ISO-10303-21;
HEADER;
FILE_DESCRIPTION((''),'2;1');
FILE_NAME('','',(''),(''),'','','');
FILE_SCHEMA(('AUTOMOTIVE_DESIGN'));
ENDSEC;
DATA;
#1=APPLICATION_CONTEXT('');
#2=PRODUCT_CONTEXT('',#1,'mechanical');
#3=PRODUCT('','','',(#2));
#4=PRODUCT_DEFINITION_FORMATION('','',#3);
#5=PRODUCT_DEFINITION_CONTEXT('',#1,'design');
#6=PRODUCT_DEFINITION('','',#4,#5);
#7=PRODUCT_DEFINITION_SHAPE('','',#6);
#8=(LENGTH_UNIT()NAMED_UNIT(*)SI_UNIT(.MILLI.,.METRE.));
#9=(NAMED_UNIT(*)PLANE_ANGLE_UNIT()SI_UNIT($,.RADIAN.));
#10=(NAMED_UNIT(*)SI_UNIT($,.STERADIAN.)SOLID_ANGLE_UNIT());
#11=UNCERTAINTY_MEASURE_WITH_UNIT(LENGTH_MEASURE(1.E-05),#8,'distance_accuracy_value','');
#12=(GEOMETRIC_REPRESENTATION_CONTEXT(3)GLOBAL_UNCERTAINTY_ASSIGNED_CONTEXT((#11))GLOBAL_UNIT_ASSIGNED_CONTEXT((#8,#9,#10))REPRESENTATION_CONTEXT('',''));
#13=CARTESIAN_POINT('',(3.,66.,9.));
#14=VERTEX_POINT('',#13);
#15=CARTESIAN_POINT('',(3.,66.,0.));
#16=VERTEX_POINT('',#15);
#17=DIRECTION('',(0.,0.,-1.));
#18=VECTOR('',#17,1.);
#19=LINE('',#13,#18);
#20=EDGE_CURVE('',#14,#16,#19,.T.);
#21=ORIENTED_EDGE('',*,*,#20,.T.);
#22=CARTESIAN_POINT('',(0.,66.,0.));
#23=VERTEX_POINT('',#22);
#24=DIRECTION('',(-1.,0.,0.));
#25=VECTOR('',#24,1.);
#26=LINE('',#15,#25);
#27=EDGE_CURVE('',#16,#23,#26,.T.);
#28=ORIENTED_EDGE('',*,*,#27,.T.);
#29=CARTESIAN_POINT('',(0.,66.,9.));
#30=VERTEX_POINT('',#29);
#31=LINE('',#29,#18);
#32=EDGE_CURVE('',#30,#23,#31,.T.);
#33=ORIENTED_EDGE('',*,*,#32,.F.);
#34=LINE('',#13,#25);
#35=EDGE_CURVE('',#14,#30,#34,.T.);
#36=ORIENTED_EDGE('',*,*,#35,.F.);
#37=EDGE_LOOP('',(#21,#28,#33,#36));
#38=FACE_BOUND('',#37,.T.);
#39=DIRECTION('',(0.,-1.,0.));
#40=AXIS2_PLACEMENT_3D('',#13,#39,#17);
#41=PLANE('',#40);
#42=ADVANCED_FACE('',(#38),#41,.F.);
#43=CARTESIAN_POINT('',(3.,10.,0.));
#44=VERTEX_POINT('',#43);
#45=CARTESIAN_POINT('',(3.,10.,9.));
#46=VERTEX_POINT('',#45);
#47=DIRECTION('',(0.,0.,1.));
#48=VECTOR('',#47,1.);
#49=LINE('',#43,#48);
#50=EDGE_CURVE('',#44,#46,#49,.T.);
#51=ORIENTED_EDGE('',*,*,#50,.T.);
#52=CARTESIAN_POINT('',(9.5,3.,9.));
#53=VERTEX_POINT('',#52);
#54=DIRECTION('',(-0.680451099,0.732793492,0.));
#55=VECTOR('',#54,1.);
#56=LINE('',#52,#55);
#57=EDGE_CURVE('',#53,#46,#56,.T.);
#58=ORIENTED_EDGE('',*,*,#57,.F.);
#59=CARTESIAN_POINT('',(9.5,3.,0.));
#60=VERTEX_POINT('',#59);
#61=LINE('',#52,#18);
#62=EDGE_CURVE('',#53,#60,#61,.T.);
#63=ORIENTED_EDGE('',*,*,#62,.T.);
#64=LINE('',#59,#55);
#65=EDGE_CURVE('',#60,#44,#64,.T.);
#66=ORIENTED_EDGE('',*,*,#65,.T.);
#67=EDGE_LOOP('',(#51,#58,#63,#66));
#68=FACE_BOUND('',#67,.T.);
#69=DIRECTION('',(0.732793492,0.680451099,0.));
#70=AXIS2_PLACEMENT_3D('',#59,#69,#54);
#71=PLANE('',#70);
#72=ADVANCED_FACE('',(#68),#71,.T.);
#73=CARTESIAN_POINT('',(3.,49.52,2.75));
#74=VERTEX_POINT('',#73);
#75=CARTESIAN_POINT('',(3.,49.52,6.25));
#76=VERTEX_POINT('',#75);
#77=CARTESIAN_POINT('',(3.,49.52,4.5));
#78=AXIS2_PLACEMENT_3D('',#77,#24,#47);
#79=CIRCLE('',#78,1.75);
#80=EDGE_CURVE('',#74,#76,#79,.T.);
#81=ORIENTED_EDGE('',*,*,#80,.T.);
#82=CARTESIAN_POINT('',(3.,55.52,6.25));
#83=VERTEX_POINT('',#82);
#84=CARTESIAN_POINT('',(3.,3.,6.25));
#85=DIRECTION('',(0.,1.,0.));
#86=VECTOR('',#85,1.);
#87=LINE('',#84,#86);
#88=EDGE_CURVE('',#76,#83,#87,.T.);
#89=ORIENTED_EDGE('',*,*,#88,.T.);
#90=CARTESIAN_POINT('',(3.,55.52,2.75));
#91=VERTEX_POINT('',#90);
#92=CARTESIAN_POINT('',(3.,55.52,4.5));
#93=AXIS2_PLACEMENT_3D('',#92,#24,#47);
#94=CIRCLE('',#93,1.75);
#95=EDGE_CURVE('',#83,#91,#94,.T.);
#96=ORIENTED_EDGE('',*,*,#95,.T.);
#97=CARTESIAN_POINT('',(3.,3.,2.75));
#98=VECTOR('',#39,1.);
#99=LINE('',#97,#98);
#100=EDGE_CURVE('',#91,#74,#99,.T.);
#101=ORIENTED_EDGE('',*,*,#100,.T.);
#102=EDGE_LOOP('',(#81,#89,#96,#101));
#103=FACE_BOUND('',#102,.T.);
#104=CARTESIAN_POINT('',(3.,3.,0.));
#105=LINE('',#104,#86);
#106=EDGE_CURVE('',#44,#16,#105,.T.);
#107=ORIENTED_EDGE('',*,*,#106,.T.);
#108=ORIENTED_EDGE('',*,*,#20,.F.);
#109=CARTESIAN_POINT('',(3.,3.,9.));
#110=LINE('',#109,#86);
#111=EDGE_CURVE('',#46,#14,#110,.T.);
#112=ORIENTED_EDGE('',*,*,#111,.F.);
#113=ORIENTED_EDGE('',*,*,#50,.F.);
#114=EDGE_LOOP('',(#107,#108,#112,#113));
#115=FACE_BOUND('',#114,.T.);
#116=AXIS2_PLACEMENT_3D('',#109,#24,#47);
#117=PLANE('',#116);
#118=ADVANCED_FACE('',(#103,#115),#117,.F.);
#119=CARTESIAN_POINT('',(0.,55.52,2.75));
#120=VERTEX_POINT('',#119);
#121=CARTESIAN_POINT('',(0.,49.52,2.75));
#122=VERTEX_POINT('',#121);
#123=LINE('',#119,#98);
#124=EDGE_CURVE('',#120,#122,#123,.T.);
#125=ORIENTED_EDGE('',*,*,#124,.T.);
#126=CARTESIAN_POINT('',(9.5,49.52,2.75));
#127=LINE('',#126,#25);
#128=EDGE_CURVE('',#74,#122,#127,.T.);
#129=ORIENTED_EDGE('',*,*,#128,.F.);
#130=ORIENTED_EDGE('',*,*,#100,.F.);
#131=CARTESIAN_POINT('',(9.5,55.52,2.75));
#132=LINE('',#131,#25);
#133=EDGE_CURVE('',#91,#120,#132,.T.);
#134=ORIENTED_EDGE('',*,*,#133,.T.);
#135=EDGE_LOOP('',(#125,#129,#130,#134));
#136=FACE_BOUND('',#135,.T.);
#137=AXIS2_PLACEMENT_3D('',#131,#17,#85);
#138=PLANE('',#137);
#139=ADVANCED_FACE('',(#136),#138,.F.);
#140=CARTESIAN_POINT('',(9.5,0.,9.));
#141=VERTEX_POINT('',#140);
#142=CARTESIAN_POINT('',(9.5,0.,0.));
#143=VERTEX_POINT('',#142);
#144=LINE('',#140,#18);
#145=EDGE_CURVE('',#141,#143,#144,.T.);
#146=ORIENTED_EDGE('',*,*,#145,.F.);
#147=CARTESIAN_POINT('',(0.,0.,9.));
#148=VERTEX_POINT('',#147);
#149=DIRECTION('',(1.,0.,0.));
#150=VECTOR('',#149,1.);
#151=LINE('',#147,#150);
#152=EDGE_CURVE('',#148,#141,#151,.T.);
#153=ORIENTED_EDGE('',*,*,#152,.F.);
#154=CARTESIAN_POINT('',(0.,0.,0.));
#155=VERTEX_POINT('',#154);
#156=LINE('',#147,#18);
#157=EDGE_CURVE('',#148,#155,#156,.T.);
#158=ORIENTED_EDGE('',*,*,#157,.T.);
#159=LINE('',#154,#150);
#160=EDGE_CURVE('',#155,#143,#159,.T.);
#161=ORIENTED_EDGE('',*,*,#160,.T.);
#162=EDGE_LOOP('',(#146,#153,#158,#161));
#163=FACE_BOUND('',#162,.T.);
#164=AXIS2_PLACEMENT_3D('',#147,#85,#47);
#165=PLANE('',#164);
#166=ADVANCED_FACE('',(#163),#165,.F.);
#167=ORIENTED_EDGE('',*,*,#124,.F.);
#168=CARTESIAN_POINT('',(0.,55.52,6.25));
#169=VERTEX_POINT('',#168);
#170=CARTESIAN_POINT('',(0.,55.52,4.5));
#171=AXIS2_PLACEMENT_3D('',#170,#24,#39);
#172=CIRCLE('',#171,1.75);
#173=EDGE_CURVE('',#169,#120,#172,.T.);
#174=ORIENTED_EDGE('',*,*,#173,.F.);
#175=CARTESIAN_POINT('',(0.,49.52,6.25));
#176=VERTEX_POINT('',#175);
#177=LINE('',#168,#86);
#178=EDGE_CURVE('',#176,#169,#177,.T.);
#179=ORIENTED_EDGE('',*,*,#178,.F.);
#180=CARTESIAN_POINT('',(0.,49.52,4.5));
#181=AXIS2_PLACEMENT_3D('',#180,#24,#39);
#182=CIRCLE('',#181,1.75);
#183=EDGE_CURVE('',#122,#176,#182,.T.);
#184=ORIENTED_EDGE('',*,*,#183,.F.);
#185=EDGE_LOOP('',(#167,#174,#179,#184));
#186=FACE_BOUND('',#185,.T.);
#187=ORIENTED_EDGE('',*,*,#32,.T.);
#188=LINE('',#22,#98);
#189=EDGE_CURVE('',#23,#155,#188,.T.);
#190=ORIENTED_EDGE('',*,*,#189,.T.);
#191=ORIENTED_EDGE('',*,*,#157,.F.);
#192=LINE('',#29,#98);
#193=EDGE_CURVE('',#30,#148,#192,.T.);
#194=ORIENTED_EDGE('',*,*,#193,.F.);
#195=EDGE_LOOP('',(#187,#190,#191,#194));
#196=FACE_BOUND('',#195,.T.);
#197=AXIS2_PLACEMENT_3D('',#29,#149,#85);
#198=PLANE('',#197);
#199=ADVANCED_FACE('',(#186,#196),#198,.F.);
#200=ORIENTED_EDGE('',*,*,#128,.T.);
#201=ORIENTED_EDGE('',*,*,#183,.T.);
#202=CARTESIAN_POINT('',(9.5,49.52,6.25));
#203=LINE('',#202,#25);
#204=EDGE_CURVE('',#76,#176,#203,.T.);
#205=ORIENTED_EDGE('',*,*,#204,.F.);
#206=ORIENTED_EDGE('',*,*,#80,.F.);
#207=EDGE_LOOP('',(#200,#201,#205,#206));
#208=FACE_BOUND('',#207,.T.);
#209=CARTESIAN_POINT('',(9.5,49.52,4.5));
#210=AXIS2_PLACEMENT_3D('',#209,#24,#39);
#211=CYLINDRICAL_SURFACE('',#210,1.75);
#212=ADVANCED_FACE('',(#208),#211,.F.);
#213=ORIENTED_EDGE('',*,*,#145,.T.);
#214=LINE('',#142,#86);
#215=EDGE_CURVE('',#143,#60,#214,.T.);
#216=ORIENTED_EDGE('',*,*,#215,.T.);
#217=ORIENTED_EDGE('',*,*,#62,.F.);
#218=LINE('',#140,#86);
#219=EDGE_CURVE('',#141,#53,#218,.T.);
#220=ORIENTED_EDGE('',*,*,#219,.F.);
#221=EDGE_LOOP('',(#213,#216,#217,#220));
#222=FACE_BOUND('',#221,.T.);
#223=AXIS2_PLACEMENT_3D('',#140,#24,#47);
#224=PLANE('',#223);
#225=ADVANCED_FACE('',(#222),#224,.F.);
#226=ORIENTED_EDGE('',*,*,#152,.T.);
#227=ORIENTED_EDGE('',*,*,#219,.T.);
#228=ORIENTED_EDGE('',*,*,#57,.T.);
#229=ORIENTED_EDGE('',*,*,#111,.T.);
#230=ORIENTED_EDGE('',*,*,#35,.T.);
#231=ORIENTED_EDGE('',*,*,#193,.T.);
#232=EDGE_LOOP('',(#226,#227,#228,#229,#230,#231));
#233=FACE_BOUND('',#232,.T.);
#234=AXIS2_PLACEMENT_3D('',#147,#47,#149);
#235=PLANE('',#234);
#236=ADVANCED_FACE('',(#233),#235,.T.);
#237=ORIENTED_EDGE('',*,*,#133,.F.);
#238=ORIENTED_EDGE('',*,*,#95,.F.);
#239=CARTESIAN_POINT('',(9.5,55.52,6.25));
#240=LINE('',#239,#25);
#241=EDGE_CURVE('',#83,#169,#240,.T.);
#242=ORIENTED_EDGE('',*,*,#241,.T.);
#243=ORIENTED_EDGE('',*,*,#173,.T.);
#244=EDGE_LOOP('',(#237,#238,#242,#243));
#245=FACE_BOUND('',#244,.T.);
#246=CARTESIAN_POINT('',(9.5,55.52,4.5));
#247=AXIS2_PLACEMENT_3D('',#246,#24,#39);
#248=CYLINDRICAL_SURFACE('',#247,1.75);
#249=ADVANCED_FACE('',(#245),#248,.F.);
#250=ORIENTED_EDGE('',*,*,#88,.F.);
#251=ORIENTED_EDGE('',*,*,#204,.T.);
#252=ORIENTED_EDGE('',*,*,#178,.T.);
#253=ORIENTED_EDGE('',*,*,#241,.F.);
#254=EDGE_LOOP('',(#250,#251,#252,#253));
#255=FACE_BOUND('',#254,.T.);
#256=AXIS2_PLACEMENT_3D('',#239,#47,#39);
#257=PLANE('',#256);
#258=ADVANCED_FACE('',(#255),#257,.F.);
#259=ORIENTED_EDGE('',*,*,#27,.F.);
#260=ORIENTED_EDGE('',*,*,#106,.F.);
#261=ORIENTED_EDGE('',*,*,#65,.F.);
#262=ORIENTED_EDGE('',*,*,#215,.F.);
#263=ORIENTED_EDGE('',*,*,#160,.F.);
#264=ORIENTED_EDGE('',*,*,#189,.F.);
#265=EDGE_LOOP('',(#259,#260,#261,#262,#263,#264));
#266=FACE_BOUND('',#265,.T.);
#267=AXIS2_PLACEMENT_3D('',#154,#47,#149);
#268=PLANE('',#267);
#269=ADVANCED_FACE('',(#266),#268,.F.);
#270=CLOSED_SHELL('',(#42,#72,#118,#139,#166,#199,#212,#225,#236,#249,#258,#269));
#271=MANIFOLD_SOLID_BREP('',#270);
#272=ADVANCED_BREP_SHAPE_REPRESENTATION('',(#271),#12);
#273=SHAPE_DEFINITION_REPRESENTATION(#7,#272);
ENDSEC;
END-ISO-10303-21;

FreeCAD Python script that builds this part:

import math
import FreeCAD as App
import Part
import Sketcher
from FreeCAD import Vector


def add_polygon(sketch, points):
    """Adds a closed chain of lines whose ends are joined by coincident constraints."""
    first, n = sketch.GeometryCount, len(points)
    for a, b in zip(points, points[1:] + points[:1]):
        sketch.addGeometry(Part.LineSegment(App.Vector(*a, 0), App.Vector(*b, 0)), False)
    for i in range(n):
        sketch.addConstraint(Sketcher.Constraint("Coincident", first + i, 2, first + (i + 1) % n, 1))

doc = App.newDocument("Part")
body = doc.addObject("PartDesign::Body", "Body")

# Sketch on XY plane
sketch1 = doc.addObject("Sketcher::SketchObject", "Sketch")
body.addObject(sketch1)
sketch1.AttachmentSupport = (doc.XY_Plane, [""])
sketch1.MapMode = "FlatFace"
add_polygon(sketch1, [(0, 0), (9.5, 0), (9.5, 3), (3, 3), (3, 66), (0, 66)])  # lines 0-5
sketch1.addConstraint(Sketcher.Constraint("Horizontal", 0))
sketch1.addConstraint(Sketcher.Constraint("Vertical", 1))
sketch1.addConstraint(Sketcher.Constraint("Horizontal", 2))
sketch1.addConstraint(Sketcher.Constraint("Vertical", 3))
sketch1.addConstraint(Sketcher.Constraint("Horizontal", 4))
sketch1.addConstraint(Sketcher.Constraint("Vertical", 5))
sketch1.addConstraint(Sketcher.Constraint("Coincident", 5, 2, -1, 1))
sketch1.addConstraint(Sketcher.Constraint("Equal", 4, 1))
sketch1.addConstraint(Sketcher.Constraint("DistanceX", 4, 2, 4, 1, 3.0))
sketch1.addConstraint(Sketcher.Constraint("DistanceY", 3, 1, 3, 2, 63.0))
sketch1.addConstraint(Sketcher.Constraint("DistanceX", 0, 1, 0, 2, 9.5))
pad1 = doc.addObject("PartDesign::Pad", "Pad")
body.addObject(pad1)
pad1.Profile = sketch1
pad1.Length = 9

# Sketch on YZ plane
sketch2 = doc.addObject("Sketcher::SketchObject", "Sketch001")
body.addObject(sketch2)
sketch2.AttachmentSupport = (doc.YZ_Plane, [""])
sketch2.MapMode = "FlatFace"
sketch2.addGeometry(Part.LineSegment(Vector(49.52, 6.25, 0), Vector(55.52, 6.25, 0)), False)
sketch2.addGeometry(Part.ArcOfCircle(Part.Circle(Vector(55.52, 4.5, 0), Vector(0, 0, 1), 1.75), math.radians(-90), math.radians(90)), False)
sketch2.addGeometry(Part.LineSegment(Vector(55.52, 2.75, 0), Vector(49.52, 2.75, 0)), False)
sketch2.addGeometry(Part.ArcOfCircle(Part.Circle(Vector(49.52, 4.5, 0), Vector(0, 0, 1), 1.75), math.radians(90), math.radians(270)), False)
sketch2.addConstraint(Sketcher.Constraint("Tangent", 0, 2, 1, 2))
sketch2.addConstraint(Sketcher.Constraint("Tangent", 1, 1, 2, 1))
sketch2.addConstraint(Sketcher.Constraint("Tangent", 2, 2, 3, 2))
sketch2.addConstraint(Sketcher.Constraint("Tangent", 3, 1, 0, 1))
sketch2.addConstraint(Sketcher.Constraint("Horizontal", 0))
sketch2.addConstraint(Sketcher.Constraint("Horizontal", 2))
sketch2.addConstraint(Sketcher.Constraint("DistanceX", 0, 1, 0, 2, 6.0))
sketch2.addConstraint(Sketcher.Constraint("Radius", 1, 1.75))
sketch2.addConstraint(Sketcher.Constraint("DistanceY", -1, 1, 1, 3, 4.5))
sketch2.addConstraint(Sketcher.Constraint("DistanceX", -1, 1, 1, 3, 55.52))
pocket1 = doc.addObject("PartDesign::Pocket", "Pocket")
body.addObject(pocket1)
pocket1.Profile = sketch2
pocket1.Type = "ThroughAll"
pocket1.Reversed = True

# Sketch on XY plane
sketch3 = doc.addObject("Sketcher::SketchObject", "Sketch002")
body.addObject(sketch3)
sketch3.AttachmentSupport = (doc.XY_Plane, [""])
sketch3.MapMode = "FlatFace"
sketch3.AttachmentOffset = App.Placement(Vector(0, 0, 9), App.Rotation())
add_polygon(sketch3, [(3, 10), (3, 3), (9.5, 3)])  # lines 0-2
sketch3.addConstraint(Sketcher.Constraint("Vertical", 0))
sketch3.addConstraint(Sketcher.Constraint("Horizontal", 1))
sketch3.addConstraint(Sketcher.Constraint("DistanceY", 0, 2, 0, 1, 7.0))
sketch3.addConstraint(Sketcher.Constraint("DistanceX", 1, 1, 1, 2, 6.5))
sketch3.addConstraint(Sketcher.Constraint("DistanceX", -1, 1, 0, 2, 3.0))
sketch3.addConstraint(Sketcher.Constraint("DistanceY", -1, 1, 0, 2, 3.0))
pad2 = doc.addObject("PartDesign::Pad", "Pad001")
body.addObject(pad2)
pad2.Profile = sketch3
pad2.Length = 9
pad2.Reversed = True

doc.recompute()
